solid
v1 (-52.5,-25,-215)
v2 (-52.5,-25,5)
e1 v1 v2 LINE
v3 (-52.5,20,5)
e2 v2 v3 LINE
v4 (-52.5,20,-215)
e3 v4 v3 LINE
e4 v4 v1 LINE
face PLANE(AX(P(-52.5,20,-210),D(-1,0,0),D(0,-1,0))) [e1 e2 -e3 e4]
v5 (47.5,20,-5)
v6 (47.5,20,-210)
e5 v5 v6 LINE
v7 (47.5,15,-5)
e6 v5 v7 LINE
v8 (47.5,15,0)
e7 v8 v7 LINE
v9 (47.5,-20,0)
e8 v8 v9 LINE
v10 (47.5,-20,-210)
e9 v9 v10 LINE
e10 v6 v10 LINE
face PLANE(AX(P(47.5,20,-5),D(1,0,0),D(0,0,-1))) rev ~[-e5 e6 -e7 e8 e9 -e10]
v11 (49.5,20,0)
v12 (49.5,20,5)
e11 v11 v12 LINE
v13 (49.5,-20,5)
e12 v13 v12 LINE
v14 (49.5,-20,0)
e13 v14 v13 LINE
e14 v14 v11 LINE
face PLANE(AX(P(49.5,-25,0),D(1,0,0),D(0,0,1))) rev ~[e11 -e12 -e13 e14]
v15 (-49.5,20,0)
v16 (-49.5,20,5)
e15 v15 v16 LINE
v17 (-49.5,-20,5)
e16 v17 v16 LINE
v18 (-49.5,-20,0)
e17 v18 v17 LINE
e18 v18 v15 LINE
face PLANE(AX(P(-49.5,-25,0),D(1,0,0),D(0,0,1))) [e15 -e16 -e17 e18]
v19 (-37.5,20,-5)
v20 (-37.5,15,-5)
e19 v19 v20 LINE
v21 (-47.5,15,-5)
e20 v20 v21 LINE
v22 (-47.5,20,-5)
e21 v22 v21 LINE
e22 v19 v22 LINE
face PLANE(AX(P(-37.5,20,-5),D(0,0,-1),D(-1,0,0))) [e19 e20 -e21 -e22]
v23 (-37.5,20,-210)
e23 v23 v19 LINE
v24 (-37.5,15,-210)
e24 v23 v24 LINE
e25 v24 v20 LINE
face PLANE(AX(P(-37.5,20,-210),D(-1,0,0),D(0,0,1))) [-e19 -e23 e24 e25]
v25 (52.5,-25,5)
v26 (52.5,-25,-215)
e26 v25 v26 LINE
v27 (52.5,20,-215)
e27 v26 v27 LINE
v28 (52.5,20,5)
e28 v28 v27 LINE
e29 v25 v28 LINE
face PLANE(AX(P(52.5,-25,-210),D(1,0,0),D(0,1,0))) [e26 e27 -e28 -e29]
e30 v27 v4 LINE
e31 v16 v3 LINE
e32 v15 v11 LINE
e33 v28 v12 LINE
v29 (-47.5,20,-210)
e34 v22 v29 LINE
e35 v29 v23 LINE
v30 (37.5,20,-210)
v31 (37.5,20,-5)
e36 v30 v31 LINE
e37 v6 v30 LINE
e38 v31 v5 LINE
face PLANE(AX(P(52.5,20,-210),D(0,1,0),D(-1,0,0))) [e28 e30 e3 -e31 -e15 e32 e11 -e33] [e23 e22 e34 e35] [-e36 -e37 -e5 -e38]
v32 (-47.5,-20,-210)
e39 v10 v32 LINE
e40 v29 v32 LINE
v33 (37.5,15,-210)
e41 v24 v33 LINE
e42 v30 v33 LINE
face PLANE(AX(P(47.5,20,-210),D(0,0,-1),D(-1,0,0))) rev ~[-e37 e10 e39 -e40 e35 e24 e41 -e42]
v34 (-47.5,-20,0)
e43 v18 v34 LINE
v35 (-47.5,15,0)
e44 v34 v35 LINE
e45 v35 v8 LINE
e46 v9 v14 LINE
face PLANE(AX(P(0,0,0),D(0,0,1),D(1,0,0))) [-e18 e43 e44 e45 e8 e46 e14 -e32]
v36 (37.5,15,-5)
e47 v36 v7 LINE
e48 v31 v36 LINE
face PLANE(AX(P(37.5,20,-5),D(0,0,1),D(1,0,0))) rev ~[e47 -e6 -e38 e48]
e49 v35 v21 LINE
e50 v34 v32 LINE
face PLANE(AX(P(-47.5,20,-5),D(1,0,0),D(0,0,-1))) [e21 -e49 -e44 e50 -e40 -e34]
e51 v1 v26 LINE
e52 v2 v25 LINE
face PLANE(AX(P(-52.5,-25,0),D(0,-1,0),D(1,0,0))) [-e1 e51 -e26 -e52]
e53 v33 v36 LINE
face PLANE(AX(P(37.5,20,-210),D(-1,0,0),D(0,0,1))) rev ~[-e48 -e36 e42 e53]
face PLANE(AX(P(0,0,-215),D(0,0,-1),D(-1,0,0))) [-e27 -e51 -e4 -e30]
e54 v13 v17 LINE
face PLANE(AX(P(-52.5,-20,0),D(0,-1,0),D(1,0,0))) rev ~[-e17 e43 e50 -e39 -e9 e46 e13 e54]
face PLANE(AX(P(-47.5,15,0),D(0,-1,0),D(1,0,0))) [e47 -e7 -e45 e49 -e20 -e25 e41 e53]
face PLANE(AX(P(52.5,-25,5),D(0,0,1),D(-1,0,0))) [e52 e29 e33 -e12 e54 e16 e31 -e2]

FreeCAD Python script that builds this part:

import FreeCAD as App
import Part
import Sketcher

doc = App.newDocument("Part")
params = doc.addObject("Spreadsheet::Sheet", "Params")
for row, (alias, value) in enumerate([
    ("sketch1_width", "95 mm"),
    ("sketch1_height", "45 mm"),
    ("pad1_length", "210 mm"),
    ("sketch2_width", "105 mm"),
    ("sketch2_height", "45 mm"),
    ("pad2_length", "5 mm"),
    ("sketch3_width", "10 mm"),
    ("sketch3_height", "205 mm"),
    ("pocket1_length", "5 mm"),
    ("sketch4_height", "5 mm"),
    ("sketch4_width", "99 mm"),
    ("pad3_length", "5 mm"),
    ("sketch5_width", "3 mm"),
    ("sketch5_height", "5 mm"),
    ("pad4_length", "45 mm"),
], start=1):
    params.set(f"A{row}", alias)
    params.set(f"B{row}", "=" + value)
    params.setAlias(f"B{row}", alias)

body = doc.addObject("PartDesign::Body", "Body")

# Sketch on XY plane
sketch1 = body.newObject("Sketcher::SketchObject", "Sketch")
sketch1.AttachmentSupport = (doc.getObject("XY_Plane"), [""])
sketch1.MapMode = "FlatFace"
sketch1.addGeometry(Part.LineSegment(App.Vector(-52.5, 20, 0), App.Vector(-52.5, -25, 0)), False)
sketch1.addGeometry(Part.LineSegment(App.Vector(-52.5, -25, 0), App.Vector(52.5, -25, 0)), False)
sketch1.addGeometry(Part.LineSegment(App.Vector(52.5, -25, 0), App.Vector(52.5, 20, 0)), False)
sketch1.addGeometry(Part.LineSegment(App.Vector(52.5, 20, 0), App.Vector(-52.5, 20, 0)), False)
sketch1.addGeometry(Part.LineSegment(App.Vector(-47.5, 15, 0), App.Vector(47.5, 15, 0)), False)
sketch1.addGeometry(Part.LineSegment(App.Vector(47.5, 15, 0), App.Vector(47.5, -20, 0)), False)
sketch1.addGeometry(Part.LineSegment(App.Vector(47.5, -20, 0), App.Vector(-47.5, -20, 0)), False)
sketch1.addGeometry(Part.LineSegment(App.Vector(-47.5, -20, 0), App.Vector(-47.5, 15, 0)), False)
sketch1.addConstraint(Sketcher.Constraint("Coincident", 0, 2, 1, 1))
sketch1.addConstraint(Sketcher.Constraint("Coincident", 1, 2, 2, 1))
sketch1.addConstraint(Sketcher.Constraint("Coincident", 2, 2, 3, 1))
sketch1.addConstraint(Sketcher.Constraint("Coincident", 3, 2, 0, 1))
sketch1.addConstraint(Sketcher.Constraint("Coincident", 4, 2, 5, 1))
sketch1.addConstraint(Sketcher.Constraint("Coincident", 5, 2, 6, 1))
sketch1.addConstraint(Sketcher.Constraint("Coincident", 6, 2, 7, 1))
sketch1.addConstraint(Sketcher.Constraint("Coincident", 7, 2, 4, 1))
sketch1.addConstraint(Sketcher.Constraint("Vertical", 0))
sketch1.addConstraint(Sketcher.Constraint("Horizontal", 1))
sketch1.addConstraint(Sketcher.Constraint("Vertical", 2))
sketch1.addConstraint(Sketcher.Constraint("Horizontal", 3))
sketch1.addConstraint(Sketcher.Constraint("Horizontal", 4))
sketch1.addConstraint(Sketcher.Constraint("Vertical", 5))
sketch1.addConstraint(Sketcher.Constraint("Horizontal", 6))
sketch1.addConstraint(Sketcher.Constraint("Vertical", 7))
sketch1.addConstraint(Sketcher.Constraint("DistanceX", 4, 1, 4, 2, 95.0))
sketch1.addConstraint(Sketcher.Constraint("DistanceY", 0, 2, 0, 1, 45.0))
sketch1.addConstraint(Sketcher.Constraint("DistanceY", -1, 1, 2, 2, 20.0))
sketch1.addConstraint(Sketcher.Constraint("DistanceY", 5, 2, -1, 1, 20.0))
sketch1.addConstraint(Sketcher.Constraint("DistanceX", 4, 2, 2, 2, 5.0))
sketch1.addConstraint(Sketcher.Constraint("DistanceY", 4, 2, 2, 2, 5.0))
sketch1.addConstraint(Sketcher.Constraint("DistanceX", 0, 2, 6, 2, 5.0))
sketch1.addConstraint(Sketcher.Constraint("DistanceX", -1, 1, 4, 2, 47.5))
sketch1.setExpression("Constraints[16]", "Params.sketch1_width")
sketch1.setExpression("Constraints[17]", "Params.sketch1_height")
pad1 = body.newObject("PartDesign::Pad", "Pad")
pad1.Profile = sketch1
pad1.setExpression("Length", "Params.pad1_length")
pad1.Reversed = True

# Sketch on XY plane
sketch2 = body.newObject("Sketcher::SketchObject", "Sketch001")
sketch2.AttachmentSupport = (doc.getObject("XY_Plane"), [""])
sketch2.MapMode = "FlatFace"
sketch2.AttachmentOffset = App.Placement(App.Vector(0, 0, -210), App.Rotation())
sketch2.addGeometry(Part.LineSegment(App.Vector(52.5, 20, 0), App.Vector(52.5, -25, 0)), False)
sketch2.addGeometry(Part.LineSegment(App.Vector(52.5, -25, 0), App.Vector(-52.5, -25, 0)), False)
sketch2.addGeometry(Part.LineSegment(App.Vector(-52.5, -25, 0), App.Vector(-52.5, 20, 0)), False)
sketch2.addGeometry(Part.LineSegment(App.Vector(-52.5, 20, 0), App.Vector(52.5, 20, 0)), False)
sketch2.addConstraint(Sketcher.Constraint("Coincident", 0, 2, 1, 1))
sketch2.addConstraint(Sketcher.Constraint("Coincident", 1, 2, 2, 1))
sketch2.addConstraint(Sketcher.Constraint("Coincident", 2, 2, 3, 1))
sketch2.addConstraint(Sketcher.Constraint("Coincident", 3, 2, 0, 1))
sketch2.addConstraint(Sketcher.Constraint("Vertical", 0))
sketch2.addConstraint(Sketcher.Constraint("Horizontal", 1))
sketch2.addConstraint(Sketcher.Constraint("Vertical", 2))
sketch2.addConstraint(Sketcher.Constraint("Horizontal", 3))
sketch2.addConstraint(Sketcher.Constraint("DistanceX", 1, 2, 1, 1, 105.0))
sketch2.addConstraint(Sketcher.Constraint("DistanceY", 0, 2, 0, 1, 45.0))
sketch2.addConstraint(Sketcher.Constraint("DistanceY", 0, 2, -1, 1, 25.0))
sketch2.addConstraint(Sketcher.Constraint("DistanceX", -1, 1, 0, 2, 52.5))
sketch2.setExpression("Constraints[8]", "Params.sketch2_width")
sketch2.setExpression("Constraints[9]", "Params.sketch2_height")
pad2 = body.newObject("PartDesign::Pad", "Pad001")
pad2.Profile = sketch2
pad2.setExpression("Length", "Params.pad2_length")
pad2.Reversed = True

# Sketch on XZ plane
sketch3 = body.newObject("Sketcher::SketchObject", "Sketch002")
sketch3.AttachmentSupport = (doc.getObject("XZ_Plane"), [""])
sketch3.MapMode = "FlatFace"
sketch3.AttachmentOffset = App.Placement(App.Vector(0, 0, -20), App.Rotation())
sketch3.addGeometry(Part.LineSegment(App.Vector(-47.5, -210, 0), App.Vector(-47.5, -5, 0)), False)
sketch3.addGeometry(Part.LineSegment(App.Vector(-47.5, -5, 0), App.Vector(-37.5, -5, 0)), False)
sketch3.addGeometry(Part.LineSegment(App.Vector(-37.5, -5, 0), App.Vector(-37.5, -210, 0)), False)
sketch3.addGeometry(Part.LineSegment(App.Vector(-37.5, -210, 0), App.Vector(-47.5, -210, 0)), False)
sketch3.addGeometry(Part.LineSegment(App.Vector(37.5, -5, 0), App.Vector(47.5, -5, 0)), False)
sketch3.addGeometry(Part.LineSegment(App.Vector(47.5, -5, 0), App.Vector(47.5, -210, 0)), False)
sketch3.addGeometry(Part.LineSegment(App.Vector(47.5, -210, 0), App.Vector(37.5, -210, 0)), False)
sketch3.addGeometry(Part.LineSegment(App.Vector(37.5, -210, 0), App.Vector(37.5, -5, 0)), False)
sketch3.addConstraint(Sketcher.Constraint("Coincident", 0, 2, 1, 1))
sketch3.addConstraint(Sketcher.Constraint("Coincident", 1, 2, 2, 1))
sketch3.addConstraint(Sketcher.Constraint("Coincident", 2, 2, 3, 1))
sketch3.addConstraint(Sketcher.Constraint("Coincident", 3, 2, 0, 1))
sketch3.addConstraint(Sketcher.Constraint("Coincident", 4, 2, 5, 1))
sketch3.addConstraint(Sketcher.Constraint("Coincident", 5, 2, 6, 1))
sketch3.addConstraint(Sketcher.Constraint("Coincident", 6, 2, 7, 1))
sketch3.addConstraint(Sketcher.Constraint("Coincident", 7, 2, 4, 1))
sketch3.addConstraint(Sketcher.Constraint("Vertical", 0))
sketch3.addConstraint(Sketcher.Constraint("Horizontal", 1))
sketch3.addConstraint(Sketcher.Constraint("Vertical", 2))
sketch3.addConstraint(Sketcher.Constraint("Horizontal", 3))
sketch3.addConstraint(Sketcher.Constraint("Horizontal", 4))
sketch3.addConstraint(Sketcher.Constraint("Vertical", 5))
sketch3.addConstraint(Sketcher.Constraint("Horizontal", 6))
sketch3.addConstraint(Sketcher.Constraint("Vertical", 7))
sketch3.addConstraint(Sketcher.Constraint("Symmetric", 0, 2, 4, 2, -2))
sketch3.addConstraint(Sketcher.Constraint("Symmetric", 2, 2, 6, 2, -2))
sketch3.addConstraint(Sketcher.Constraint("DistanceX", 1, 1, 1, 2, 10.0))
sketch3.addConstraint(Sketcher.Constraint("DistanceY", 0, 1, 0, 2, 205.0))
sketch3.addConstraint(Sketcher.Constraint("DistanceY", 0, 2, -1, 1, 5.0))
sketch3.addConstraint(Sketcher.Constraint("DistanceX", 1, 2, 4, 2, 85.0))
sketch3.setExpression("Constraints[18]", "Params.sketch3_width")
sketch3.setExpression("Constraints[19]", "Params.sketch3_height")
pocket1 = body.newObject("PartDesign::Pocket", "Pocket")
pocket1.Profile = sketch3
pocket1.setExpression("Length", "Params.pocket1_length")
pocket1.Reversed = True

# Sketch on XZ plane
sketch4 = body.newObject("Sketcher::SketchObject", "Sketch003")
sketch4.AttachmentSupport = (doc.getObject("XZ_Plane"), [""])
sketch4.MapMode = "FlatFace"
sketch4.AttachmentOffset = App.Placement(App.Vector(0, 0, 25), App.Rotation())
sketch4.addGeometry(Part.LineSegment(App.Vector(-49.5, 5, 0), App.Vector(-49.5, 0, 0)), False)
sketch4.addGeometry(Part.LineSegment(App.Vector(-49.5, 0, 0), App.Vector(49.5, 0, 0)), False)
sketch4.addGeometry(Part.LineSegment(App.Vector(49.5, 0, 0), App.Vector(49.5, 5, 0)), False)
sketch4.addGeometry(Part.LineSegment(App.Vector(49.5, 5, 0), App.Vector(-49.5, 5, 0)), False)
sketch4.addConstraint(Sketcher.Constraint("Coincident", 0, 2, 1, 1))
sketch4.addConstraint(Sketcher.Constraint("Coincident", 1, 2, 2, 1))
sketch4.addConstraint(Sketcher.Constraint("Coincident", 2, 2, 3, 1))
sketch4.addConstraint(Sketcher.Constraint("Coincident", 3, 2, 0, 1))
sketch4.addConstraint(Sketcher.Constraint("Vertical", 0))
sketch4.addConstraint(Sketcher.Constraint("Horizontal", 1))
sketch4.addConstraint(Sketcher.Constraint("Vertical", 2))
sketch4.addConstraint(Sketcher.Constraint("Horizontal", 3))
sketch4.addConstraint(Sketcher.Constraint("Symmetric", 0, 2, 1, 2, -1, 1))
sketch4.addConstraint(Sketcher.Constraint("DistanceY", 0, 2, 0, 1, 5.0))
sketch4.addConstraint(Sketcher.Constraint("DistanceX", 1, 1, 1, 2, 99.0))
sketch4.setExpression("Constraints[9]", "Params.sketch4_height")
sketch4.setExpression("Constraints[10]", "Params.sketch4_width")
pad3 = body.newObject("PartDesign::Pad", "Pad002")
pad3.Profile = sketch4
pad3.setExpression("Length", "Params.pad3_length")
pad3.Reversed = True

# Sketch on XZ plane
sketch5 = body.newObject("Sketcher::SketchObject", "Sketch004")
sketch5.AttachmentSupport = (doc.getObject("XZ_Plane"), [""])
sketch5.MapMode = "FlatFace"
sketch5.AttachmentOffset = App.Placement(App.Vector(0, 0, 25), App.Rotation())
sketch5.addGeometry(Part.LineSegment(App.Vector(-52.5, 5, 0), App.Vector(-52.5, 0, 0)), False)
sketch5.addGeometry(Part.LineSegment(App.Vector(-52.5, 0, 0), App.Vector(-49.5, 0, 0)), False)
sketch5.addGeometry(Part.LineSegment(App.Vector(-49.5, 0, 0), App.Vector(-49.5, 5, 0)), False)
sketch5.addGeometry(Part.LineSegment(App.Vector(-49.5, 5, 0), App.Vector(-52.5, 5, 0)), False)
sketch5.addGeometry(Part.LineSegment(App.Vector(49.5, 5, 0), App.Vector(49.5, 0, 0)), False)
sketch5.addGeometry(Part.LineSegment(App.Vector(49.5, 0, 0), App.Vector(52.5, 0, 0)), False)
sketch5.addGeometry(Part.LineSegment(App.Vector(52.5, 0, 0), App.Vector(52.5, 5, 0)), False)
sketch5.addGeometry(Part.LineSegment(App.Vector(52.5, 5, 0), App.Vector(49.5, 5, 0)), False)
sketch5.addConstraint(Sketcher.Constraint("Coincident", 0, 2, 1, 1))
sketch5.addConstraint(Sketcher.Constraint("Coincident", 1, 2, 2, 1))
sketch5.addConstraint(Sketcher.Constraint("Coincident", 2, 2, 3, 1))
sketch5.addConstraint(Sketcher.Constraint("Coincident", 3, 2, 0, 1))
sketch5.addConstraint(Sketcher.Constraint("Coincident", 4, 2, 5, 1))
sketch5.addConstraint(Sketcher.Constraint("Coincident", 5, 2, 6, 1))
sketch5.addConstraint(Sketcher.Constraint("Coincident", 6, 2, 7, 1))
sketch5.addConstraint(Sketcher.Constraint("Coincident", 7, 2, 4, 1))
sketch5.addConstraint(Sketcher.Constraint("Vertical", 0))
sketch5.addConstraint(Sketcher.Constraint("Horizontal", 1))
sketch5.addConstraint(Sketcher.Constraint("Vertical", 2))
sketch5.addConstraint(Sketcher.Constraint("Horizontal", 3))
sketch5.addConstraint(Sketcher.Constraint("Vertical", 4))
sketch5.addConstraint(Sketcher.Constraint("Horizontal", 5))
sketch5.addConstraint(Sketcher.Constraint("Vertical", 6))
sketch5.addConstraint(Sketcher.Constraint("Horizontal", 7))
sketch5.addConstraint(Sketcher.Constraint("Symmetric", 1, 2, 4, 2, -1, 1))
sketch5.addConstraint(Sketcher.Constraint("Symmetric", 0, 2, 5, 2, -2))
sketch5.addConstraint(Sketcher.Constraint("Horizontal", 3, 2, 6, 2))
sketch5.addConstraint(Sketcher.Constraint("DistanceX", 1, 1, 1, 2, 3.0))
sketch5.addConstraint(Sketcher.Constraint("DistanceY", 0, 2, 0, 1, 5.0))
sketch5.addConstraint(Sketcher.Constraint("DistanceX", 1, 2, 4, 2, 99.0))
sketch5.setExpression("Constraints[19]", "Params.sketch5_width")
sketch5.setExpression("Constraints[20]", "Params.sketch5_height")
pad4 = body.newObject("PartDesign::Pad", "Pad003")
pad4.Profile = sketch5
pad4.setExpression("Length", "Params.pad4_length")
pad4.Reversed = True

doc.recompute()
